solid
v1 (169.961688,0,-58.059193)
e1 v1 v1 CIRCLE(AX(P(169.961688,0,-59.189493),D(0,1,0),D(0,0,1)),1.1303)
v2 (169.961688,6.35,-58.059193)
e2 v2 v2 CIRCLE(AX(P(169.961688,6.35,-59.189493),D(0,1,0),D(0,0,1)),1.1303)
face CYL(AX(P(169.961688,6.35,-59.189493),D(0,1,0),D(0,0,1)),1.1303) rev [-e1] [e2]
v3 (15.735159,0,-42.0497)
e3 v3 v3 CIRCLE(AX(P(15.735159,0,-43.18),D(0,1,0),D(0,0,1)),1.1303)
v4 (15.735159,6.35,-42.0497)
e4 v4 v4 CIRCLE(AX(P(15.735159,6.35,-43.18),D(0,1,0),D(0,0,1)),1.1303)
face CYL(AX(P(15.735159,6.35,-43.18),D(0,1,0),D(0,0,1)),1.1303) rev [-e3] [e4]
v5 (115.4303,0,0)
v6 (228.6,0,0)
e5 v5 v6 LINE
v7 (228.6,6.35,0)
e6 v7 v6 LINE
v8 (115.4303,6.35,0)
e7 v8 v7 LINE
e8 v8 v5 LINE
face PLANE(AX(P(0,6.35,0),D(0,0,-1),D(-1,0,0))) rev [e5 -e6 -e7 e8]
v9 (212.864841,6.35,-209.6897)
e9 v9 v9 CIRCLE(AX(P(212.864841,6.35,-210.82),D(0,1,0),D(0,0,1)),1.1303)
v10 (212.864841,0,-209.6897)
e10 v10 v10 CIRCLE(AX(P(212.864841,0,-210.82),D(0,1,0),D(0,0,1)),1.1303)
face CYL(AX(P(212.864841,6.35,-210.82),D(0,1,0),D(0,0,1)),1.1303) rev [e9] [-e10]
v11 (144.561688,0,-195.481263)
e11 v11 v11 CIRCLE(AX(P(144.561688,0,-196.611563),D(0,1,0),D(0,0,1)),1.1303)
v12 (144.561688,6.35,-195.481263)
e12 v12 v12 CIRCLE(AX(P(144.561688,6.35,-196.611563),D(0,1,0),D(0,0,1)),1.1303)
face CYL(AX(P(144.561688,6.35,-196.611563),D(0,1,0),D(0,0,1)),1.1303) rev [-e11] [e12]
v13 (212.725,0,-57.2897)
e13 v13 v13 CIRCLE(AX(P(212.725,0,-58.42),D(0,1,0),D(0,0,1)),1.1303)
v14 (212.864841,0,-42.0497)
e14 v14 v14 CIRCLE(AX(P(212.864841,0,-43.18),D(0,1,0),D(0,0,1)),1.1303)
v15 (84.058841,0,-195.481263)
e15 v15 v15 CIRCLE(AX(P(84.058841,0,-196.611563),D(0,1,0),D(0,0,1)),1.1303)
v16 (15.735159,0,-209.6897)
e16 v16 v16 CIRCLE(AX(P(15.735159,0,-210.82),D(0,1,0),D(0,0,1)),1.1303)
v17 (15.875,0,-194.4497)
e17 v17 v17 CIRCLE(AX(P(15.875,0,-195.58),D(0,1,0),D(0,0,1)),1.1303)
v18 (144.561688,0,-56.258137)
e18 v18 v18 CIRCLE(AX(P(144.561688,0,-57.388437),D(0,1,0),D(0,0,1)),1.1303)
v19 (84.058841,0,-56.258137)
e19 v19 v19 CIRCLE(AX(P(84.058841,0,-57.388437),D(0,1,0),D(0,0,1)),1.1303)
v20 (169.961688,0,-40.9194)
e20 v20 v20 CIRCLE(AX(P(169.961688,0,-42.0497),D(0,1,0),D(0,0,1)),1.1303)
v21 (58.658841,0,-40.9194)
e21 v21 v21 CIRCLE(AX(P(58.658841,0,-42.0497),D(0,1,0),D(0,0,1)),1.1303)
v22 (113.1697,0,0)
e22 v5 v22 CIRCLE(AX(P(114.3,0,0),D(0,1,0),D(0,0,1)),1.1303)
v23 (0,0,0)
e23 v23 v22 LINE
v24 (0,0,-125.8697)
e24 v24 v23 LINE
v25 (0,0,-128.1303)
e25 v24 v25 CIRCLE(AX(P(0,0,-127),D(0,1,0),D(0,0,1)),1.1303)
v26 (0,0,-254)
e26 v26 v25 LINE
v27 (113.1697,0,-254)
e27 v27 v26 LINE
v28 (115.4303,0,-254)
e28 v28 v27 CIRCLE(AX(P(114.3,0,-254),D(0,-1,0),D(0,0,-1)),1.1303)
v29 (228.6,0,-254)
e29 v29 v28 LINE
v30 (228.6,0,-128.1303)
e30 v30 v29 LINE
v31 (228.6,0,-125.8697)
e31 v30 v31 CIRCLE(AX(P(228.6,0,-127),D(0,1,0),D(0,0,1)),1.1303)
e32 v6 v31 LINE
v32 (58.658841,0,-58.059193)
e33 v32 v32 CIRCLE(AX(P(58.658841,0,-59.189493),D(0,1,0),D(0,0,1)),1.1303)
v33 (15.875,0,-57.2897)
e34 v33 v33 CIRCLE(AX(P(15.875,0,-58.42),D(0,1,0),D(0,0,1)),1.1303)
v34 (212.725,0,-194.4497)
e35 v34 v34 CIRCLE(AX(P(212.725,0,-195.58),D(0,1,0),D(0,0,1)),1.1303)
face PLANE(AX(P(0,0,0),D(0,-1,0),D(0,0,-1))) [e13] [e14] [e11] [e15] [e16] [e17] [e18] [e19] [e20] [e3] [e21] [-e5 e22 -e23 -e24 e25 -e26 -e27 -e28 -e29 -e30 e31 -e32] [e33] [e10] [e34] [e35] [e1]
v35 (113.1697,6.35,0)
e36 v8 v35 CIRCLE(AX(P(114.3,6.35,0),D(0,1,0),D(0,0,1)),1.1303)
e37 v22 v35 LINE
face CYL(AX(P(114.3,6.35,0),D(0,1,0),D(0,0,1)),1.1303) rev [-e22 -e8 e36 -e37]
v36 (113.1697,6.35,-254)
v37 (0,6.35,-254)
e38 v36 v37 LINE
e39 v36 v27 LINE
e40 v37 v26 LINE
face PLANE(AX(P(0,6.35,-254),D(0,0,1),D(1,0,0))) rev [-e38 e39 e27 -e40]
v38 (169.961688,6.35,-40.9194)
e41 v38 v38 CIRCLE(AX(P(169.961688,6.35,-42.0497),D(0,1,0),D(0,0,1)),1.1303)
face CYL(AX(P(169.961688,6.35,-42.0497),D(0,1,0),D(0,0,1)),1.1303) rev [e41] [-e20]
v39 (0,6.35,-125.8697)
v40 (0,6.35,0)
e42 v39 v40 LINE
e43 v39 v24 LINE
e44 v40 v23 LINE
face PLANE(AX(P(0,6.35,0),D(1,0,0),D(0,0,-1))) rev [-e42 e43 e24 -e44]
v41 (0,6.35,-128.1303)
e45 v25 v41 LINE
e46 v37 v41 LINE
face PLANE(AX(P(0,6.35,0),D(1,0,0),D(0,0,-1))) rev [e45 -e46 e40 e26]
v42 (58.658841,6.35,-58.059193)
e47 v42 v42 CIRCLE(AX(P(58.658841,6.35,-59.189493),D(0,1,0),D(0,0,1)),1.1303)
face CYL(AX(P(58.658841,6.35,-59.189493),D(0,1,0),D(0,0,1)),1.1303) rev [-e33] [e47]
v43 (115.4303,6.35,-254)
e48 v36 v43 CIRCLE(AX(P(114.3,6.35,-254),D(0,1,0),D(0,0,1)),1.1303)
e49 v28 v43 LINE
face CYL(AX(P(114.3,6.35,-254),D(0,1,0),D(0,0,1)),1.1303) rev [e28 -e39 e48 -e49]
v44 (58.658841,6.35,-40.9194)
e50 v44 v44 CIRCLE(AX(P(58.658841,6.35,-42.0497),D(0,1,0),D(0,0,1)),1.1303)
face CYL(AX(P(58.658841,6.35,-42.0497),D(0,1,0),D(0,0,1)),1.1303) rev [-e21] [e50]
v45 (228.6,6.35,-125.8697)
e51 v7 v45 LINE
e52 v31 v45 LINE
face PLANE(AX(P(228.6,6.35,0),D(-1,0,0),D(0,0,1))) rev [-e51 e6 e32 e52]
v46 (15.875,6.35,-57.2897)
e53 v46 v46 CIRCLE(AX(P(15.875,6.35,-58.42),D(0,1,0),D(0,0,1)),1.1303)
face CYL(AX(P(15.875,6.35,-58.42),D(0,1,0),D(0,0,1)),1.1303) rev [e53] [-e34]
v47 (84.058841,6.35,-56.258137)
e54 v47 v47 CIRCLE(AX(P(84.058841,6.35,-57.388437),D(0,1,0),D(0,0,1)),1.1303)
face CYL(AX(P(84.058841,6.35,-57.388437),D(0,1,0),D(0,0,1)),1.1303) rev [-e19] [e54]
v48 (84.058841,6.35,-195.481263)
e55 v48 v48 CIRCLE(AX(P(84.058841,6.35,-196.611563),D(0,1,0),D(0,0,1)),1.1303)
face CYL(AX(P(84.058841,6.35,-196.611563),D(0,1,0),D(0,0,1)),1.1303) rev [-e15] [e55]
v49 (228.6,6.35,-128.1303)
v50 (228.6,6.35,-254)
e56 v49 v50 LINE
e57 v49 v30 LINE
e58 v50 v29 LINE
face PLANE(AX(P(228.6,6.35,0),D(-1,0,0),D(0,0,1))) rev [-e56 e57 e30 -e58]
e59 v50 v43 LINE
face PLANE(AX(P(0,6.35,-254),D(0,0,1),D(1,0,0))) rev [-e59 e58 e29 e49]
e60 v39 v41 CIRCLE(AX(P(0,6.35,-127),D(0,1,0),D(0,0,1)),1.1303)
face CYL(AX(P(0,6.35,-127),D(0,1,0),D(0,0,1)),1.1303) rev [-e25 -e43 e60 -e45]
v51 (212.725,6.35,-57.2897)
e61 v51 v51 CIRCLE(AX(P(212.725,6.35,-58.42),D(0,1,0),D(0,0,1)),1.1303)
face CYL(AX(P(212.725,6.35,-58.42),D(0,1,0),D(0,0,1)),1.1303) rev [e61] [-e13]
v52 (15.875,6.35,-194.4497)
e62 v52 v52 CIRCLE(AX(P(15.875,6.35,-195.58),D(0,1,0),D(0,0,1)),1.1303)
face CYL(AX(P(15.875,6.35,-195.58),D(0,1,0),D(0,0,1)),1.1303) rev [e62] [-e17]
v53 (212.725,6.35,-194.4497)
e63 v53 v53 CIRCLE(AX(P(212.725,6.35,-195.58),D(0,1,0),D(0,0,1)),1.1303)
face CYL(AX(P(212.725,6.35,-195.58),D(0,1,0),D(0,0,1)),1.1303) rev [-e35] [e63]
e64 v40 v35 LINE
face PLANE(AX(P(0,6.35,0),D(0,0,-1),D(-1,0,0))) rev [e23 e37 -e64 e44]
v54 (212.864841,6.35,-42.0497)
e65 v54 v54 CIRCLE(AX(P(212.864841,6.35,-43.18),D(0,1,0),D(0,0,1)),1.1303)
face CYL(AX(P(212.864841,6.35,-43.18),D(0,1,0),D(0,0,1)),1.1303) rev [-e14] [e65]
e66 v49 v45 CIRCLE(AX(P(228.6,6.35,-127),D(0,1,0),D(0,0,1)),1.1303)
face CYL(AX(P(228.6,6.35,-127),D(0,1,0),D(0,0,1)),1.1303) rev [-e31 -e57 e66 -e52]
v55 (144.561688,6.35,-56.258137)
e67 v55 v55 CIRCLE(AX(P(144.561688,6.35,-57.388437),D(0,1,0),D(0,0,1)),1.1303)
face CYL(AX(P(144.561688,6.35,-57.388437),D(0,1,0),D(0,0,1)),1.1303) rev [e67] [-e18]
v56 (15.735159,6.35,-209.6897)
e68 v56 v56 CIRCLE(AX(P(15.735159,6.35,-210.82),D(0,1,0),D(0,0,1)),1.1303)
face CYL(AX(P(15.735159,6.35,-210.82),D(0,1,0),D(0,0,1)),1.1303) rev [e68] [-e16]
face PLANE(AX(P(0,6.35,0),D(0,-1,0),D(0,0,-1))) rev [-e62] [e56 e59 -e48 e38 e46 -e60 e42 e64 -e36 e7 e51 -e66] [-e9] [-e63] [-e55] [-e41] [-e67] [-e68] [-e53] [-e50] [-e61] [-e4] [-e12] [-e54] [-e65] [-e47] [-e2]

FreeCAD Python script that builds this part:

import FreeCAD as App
import Part
import Sketcher
Q = App.Units.Quantity


def add_polygon(sketch, points):
    """Adds a closed chain of lines whose ends are joined by coincident constraints."""
    first, n = sketch.GeometryCount, len(points)
    for a, b in zip(points, points[1:] + points[:1]):
        sketch.addGeometry(Part.LineSegment(App.Vector(*a, 0), App.Vector(*b, 0)), False)
    for i in range(n):
        sketch.addConstraint(Sketcher.Constraint("Coincident", first + i, 2, first + (i + 1) % n, 1))

doc = App.newDocument("Part")
body = doc.addObject("PartDesign::Body", "Body")

sketch1 = doc.addObject("Sketcher::SketchObject", "Sketch")
body.addObject(sketch1)
sketch1.AttachmentSupport = (doc.XZ_Plane, [""])
sketch1.MapMode = "FlatFace"
add_polygon(sketch1, [(0, -254), (0, 0), (228.6, 0), (228.6, -254)])
sketch1.addConstraint([
    Sketcher.Constraint("Vertical", 0),
    Sketcher.Constraint("Horizontal", 1),
    Sketcher.Constraint("Vertical", 2),
    Sketcher.Constraint("Horizontal", 3),
    Sketcher.Constraint("Coincident", 0, 2, -1, 1),
    Sketcher.Constraint("DistanceX", 1, 1, 1, 2, Q("9 in")),
    Sketcher.Constraint("DistanceY", 0, 1, 0, 2, Q("10 in")),
])
pad1 = doc.addObject("PartDesign::Pad", "Pad")
body.addObject(pad1)
pad1.Profile = sketch1
pad1.Length = Q("0.25 in")
pad1.Reversed = True

sketch2 = doc.addObject("Sketcher::SketchObject", "Sketch001")
body.addObject(sketch2)
sketch2.AttachmentSupport = (doc.XZ_Plane, [""])
sketch2.MapMode = "FlatFace"
sketch2.AttachmentOffset = App.Placement(App.Vector(0, 0, -0.25 * 25.4), App.Rotation())
sketch2.addGeometry([
    Part.Circle(App.Vector(15.735159, -43.18, 0), App.Vector(0, 0, 1), 1.1303),
    Part.Circle(App.Vector(15.875, -58.42, 0), App.Vector(0, 0, 1), 1.1303),
    Part.Circle(App.Vector(84.058841, -57.388437, 0), App.Vector(0, 0, 1), 1.1303),
    Part.Circle(App.Vector(144.561688, -57.388437, 0), App.Vector(0, 0, 1), 1.1303),
    Part.Circle(App.Vector(0, -127, 0), App.Vector(0, 0, 1), 1.1303),
    Part.Circle(App.Vector(144.561688, -196.611563, 0), App.Vector(0, 0, 1), 1.1303),
    Part.Circle(App.Vector(84.058841, -196.611563, 0), App.Vector(0, 0, 1), 1.1303),
    Part.Circle(App.Vector(15.875, -195.58, 0), App.Vector(0, 0, 1), 1.1303),
    Part.Circle(App.Vector(15.735159, -210.82, 0), App.Vector(0, 0, 1), 1.1303),
    Part.Circle(App.Vector(114.3, 0, 0), App.Vector(0, 0, 1), 1.1303),
    Part.Circle(App.Vector(212.864841, -43.18, 0), App.Vector(0, 0, 1), 1.1303),
    Part.Circle(App.Vector(212.725, -58.42, 0), App.Vector(0, 0, 1), 1.1303),
    Part.Circle(App.Vector(212.864841, -210.82, 0), App.Vector(0, 0, 1), 1.1303),
    Part.Circle(App.Vector(212.725, -195.58, 0), App.Vector(0, 0, 1), 1.1303),
    Part.Circle(App.Vector(228.6, -127, 0), App.Vector(0, 0, 1), 1.1303),
    Part.Circle(App.Vector(114.3, -254, 0), App.Vector(0, 0, 1), 1.1303),
], False)
sketch2.addConstraint([
    Sketcher.Constraint("Equal", 0, 1),
    Sketcher.Constraint("Equal", 1, 2),
    Sketcher.Constraint("Equal", 2, 3),
    Sketcher.Constraint("Equal", 3, 4),
    Sketcher.Constraint("Equal", 4, 5),
    Sketcher.Constraint("Equal", 5, 6),
    Sketcher.Constraint("Equal", 6, 7),
    Sketcher.Constraint("Equal", 7, 8),
    Sketcher.Constraint("Equal", 8, 9),
    Sketcher.Constraint("Equal", 9, 10),
    Sketcher.Constraint("Equal", 10, 11),
    Sketcher.Constraint("Equal", 11, 12),
    Sketcher.Constraint("Equal", 12, 13),
    Sketcher.Constraint("Equal", 13, 14),
    Sketcher.Constraint("Equal", 14, 15),
    Sketcher.Constraint("PointOnObject", 4, 3, -2),
    Sketcher.Constraint("PointOnObject", 9, 3, -1),
    Sketcher.Constraint("Horizontal", 2, 3, 3, 3),
    Sketcher.Constraint("Horizontal", 5, 3, 6, 3),
    Sketcher.Constraint("Horizontal", 0, 3, 10, 3),
    Sketcher.Constraint("Horizontal", 1, 3, 11, 3),
    Sketcher.Constraint("Horizontal", 8, 3, 12, 3),
    Sketcher.Constraint("Horizontal", 7, 3, 13, 3),
    Sketcher.Constraint("Horizontal", 4, 3, 14, 3),
    Sketcher.Constraint("Vertical", 3, 3, 5, 3),
    Sketcher.Constraint("Vertical", 2, 3, 6, 3),
    Sketcher.Constraint("Vertical", 1, 3, 7, 3),
    Sketcher.Constraint("Vertical", 0, 3, 8, 3),
    Sketcher.Constraint("Vertical", 10, 3, 12, 3),
    Sketcher.Constraint("Vertical", 11, 3, 13, 3),
    Sketcher.Constraint("Vertical", 9, 3, 15, 3),
    Sketcher.Constraint("Diameter", 0, Q("0.089 in")),
    Sketcher.Constraint("DistanceY", 4, 3, -1, 1, Q("5 in")),
    Sketcher.Constraint("DistanceX", -1, 1, 14, 3, Q("9 in")),
    Sketcher.Constraint("DistanceY", 15, 3, -1, 1, Q("10 in")),
    Sketcher.Constraint("DistanceY", 7, 3, 0, 3, Q("6 in")),
    Sketcher.Constraint("DistanceY", 8, 3, 1, 3, Q("6 in")),
    Sketcher.Constraint("DistanceY", 0, 3, -1, 1, Q("1.7 in")),
    Sketcher.Constraint("DistanceY", 1, 3, -1, 1, Q("2.3 in")),
    Sketcher.Constraint("DistanceX", -1, 1, 9, 3, Q("4.5 in")),
    Sketcher.Constraint("DistanceX", -1, 1, 1, 3, Q("0.625 in")),
    Sketcher.Constraint("DistanceX", -1, 1, 11, 3, Q("8.375 in")),
    Sketcher.Constraint("DistanceX", 2, 3, 10, 3, 128.805999),
    Sketcher.Constraint("DistanceX", -1, 1, 0, 3, 15.735159),
    Sketcher.Constraint("DistanceX", -1, 1, 2, 3, 84.058841),
    Sketcher.Constraint("DistanceX", -1, 1, 3, 3, 144.561688),
    Sketcher.Constraint("DistanceY", 2, 3, -1, 1, 57.388437),
    Sketcher.Constraint("DistanceY", 5, 3, -1, 1, 196.611563),
])
doc.recompute()
hole = doc.addObject("PartDesign::Hole", "Hole")
body.addObject(hole)
hole.Profile = sketch2
hole.ThreadType = "None"
hole.Diameter = Q("0.089 in")
hole.DepthType = "ThroughAll"
hole.Reversed = True

sketch3 = doc.addObject("Sketcher::SketchObject", "Sketch002")
body.addObject(sketch3)
sketch3.AttachmentSupport = (doc.XZ_Plane, [""])
sketch3.MapMode = "FlatFace"
sketch3.AttachmentOffset = App.Placement(App.Vector(0, 0, -0.25 * 25.4), App.Rotation())
sketch3.addGeometry([
    Part.Circle(App.Vector(58.658841, -59.189493, 0), App.Vector(0, 0, 1), 1.1303),
    Part.Circle(App.Vector(58.658841, -42.0497, 0), App.Vector(0, 0, 1), 1.1303),
    Part.Circle(App.Vector(169.961688, -59.189493, 0), App.Vector(0, 0, 1), 1.1303),
    Part.Circle(App.Vector(169.961688, -42.0497, 0), App.Vector(0, 0, 1), 1.1303),
], False)
sketch3.addConstraint([
    Sketcher.Constraint("Equal", 0, 1),
    Sketcher.Constraint("Equal", 1, 2),
    Sketcher.Constraint("Equal", 2, 3),
    Sketcher.Constraint("Horizontal", 0, 3, 2, 3),
    Sketcher.Constraint("Horizontal", 1, 3, 3, 3),
    Sketcher.Constraint("Vertical", 0, 3, 1, 3),
    Sketcher.Constraint("Vertical", 2, 3, 3, 3),
    Sketcher.Constraint("Diameter", 0, Q("0.089 in")),
    Sketcher.Constraint("DistanceY", 1, 3, -1, 1, Q("1.6555 in")),
    Sketcher.Constraint("DistanceX", -1, 1, 0, 3, 58.658841),
    Sketcher.Constraint("DistanceX", -1, 1, 2, 3, 169.961688),
    Sketcher.Constraint("DistanceY", 0, 3, -1, 1, 59.189493),
])
doc.recompute()
hole2 = doc.addObject("PartDesign::Hole", "Hole001")
body.addObject(hole2)
hole2.Profile = sketch3
hole2.ThreadType = "None"
hole2.Diameter = Q("0.089 in")
hole2.DepthType = "ThroughAll"
hole2.Reversed = True

doc.recompute()
